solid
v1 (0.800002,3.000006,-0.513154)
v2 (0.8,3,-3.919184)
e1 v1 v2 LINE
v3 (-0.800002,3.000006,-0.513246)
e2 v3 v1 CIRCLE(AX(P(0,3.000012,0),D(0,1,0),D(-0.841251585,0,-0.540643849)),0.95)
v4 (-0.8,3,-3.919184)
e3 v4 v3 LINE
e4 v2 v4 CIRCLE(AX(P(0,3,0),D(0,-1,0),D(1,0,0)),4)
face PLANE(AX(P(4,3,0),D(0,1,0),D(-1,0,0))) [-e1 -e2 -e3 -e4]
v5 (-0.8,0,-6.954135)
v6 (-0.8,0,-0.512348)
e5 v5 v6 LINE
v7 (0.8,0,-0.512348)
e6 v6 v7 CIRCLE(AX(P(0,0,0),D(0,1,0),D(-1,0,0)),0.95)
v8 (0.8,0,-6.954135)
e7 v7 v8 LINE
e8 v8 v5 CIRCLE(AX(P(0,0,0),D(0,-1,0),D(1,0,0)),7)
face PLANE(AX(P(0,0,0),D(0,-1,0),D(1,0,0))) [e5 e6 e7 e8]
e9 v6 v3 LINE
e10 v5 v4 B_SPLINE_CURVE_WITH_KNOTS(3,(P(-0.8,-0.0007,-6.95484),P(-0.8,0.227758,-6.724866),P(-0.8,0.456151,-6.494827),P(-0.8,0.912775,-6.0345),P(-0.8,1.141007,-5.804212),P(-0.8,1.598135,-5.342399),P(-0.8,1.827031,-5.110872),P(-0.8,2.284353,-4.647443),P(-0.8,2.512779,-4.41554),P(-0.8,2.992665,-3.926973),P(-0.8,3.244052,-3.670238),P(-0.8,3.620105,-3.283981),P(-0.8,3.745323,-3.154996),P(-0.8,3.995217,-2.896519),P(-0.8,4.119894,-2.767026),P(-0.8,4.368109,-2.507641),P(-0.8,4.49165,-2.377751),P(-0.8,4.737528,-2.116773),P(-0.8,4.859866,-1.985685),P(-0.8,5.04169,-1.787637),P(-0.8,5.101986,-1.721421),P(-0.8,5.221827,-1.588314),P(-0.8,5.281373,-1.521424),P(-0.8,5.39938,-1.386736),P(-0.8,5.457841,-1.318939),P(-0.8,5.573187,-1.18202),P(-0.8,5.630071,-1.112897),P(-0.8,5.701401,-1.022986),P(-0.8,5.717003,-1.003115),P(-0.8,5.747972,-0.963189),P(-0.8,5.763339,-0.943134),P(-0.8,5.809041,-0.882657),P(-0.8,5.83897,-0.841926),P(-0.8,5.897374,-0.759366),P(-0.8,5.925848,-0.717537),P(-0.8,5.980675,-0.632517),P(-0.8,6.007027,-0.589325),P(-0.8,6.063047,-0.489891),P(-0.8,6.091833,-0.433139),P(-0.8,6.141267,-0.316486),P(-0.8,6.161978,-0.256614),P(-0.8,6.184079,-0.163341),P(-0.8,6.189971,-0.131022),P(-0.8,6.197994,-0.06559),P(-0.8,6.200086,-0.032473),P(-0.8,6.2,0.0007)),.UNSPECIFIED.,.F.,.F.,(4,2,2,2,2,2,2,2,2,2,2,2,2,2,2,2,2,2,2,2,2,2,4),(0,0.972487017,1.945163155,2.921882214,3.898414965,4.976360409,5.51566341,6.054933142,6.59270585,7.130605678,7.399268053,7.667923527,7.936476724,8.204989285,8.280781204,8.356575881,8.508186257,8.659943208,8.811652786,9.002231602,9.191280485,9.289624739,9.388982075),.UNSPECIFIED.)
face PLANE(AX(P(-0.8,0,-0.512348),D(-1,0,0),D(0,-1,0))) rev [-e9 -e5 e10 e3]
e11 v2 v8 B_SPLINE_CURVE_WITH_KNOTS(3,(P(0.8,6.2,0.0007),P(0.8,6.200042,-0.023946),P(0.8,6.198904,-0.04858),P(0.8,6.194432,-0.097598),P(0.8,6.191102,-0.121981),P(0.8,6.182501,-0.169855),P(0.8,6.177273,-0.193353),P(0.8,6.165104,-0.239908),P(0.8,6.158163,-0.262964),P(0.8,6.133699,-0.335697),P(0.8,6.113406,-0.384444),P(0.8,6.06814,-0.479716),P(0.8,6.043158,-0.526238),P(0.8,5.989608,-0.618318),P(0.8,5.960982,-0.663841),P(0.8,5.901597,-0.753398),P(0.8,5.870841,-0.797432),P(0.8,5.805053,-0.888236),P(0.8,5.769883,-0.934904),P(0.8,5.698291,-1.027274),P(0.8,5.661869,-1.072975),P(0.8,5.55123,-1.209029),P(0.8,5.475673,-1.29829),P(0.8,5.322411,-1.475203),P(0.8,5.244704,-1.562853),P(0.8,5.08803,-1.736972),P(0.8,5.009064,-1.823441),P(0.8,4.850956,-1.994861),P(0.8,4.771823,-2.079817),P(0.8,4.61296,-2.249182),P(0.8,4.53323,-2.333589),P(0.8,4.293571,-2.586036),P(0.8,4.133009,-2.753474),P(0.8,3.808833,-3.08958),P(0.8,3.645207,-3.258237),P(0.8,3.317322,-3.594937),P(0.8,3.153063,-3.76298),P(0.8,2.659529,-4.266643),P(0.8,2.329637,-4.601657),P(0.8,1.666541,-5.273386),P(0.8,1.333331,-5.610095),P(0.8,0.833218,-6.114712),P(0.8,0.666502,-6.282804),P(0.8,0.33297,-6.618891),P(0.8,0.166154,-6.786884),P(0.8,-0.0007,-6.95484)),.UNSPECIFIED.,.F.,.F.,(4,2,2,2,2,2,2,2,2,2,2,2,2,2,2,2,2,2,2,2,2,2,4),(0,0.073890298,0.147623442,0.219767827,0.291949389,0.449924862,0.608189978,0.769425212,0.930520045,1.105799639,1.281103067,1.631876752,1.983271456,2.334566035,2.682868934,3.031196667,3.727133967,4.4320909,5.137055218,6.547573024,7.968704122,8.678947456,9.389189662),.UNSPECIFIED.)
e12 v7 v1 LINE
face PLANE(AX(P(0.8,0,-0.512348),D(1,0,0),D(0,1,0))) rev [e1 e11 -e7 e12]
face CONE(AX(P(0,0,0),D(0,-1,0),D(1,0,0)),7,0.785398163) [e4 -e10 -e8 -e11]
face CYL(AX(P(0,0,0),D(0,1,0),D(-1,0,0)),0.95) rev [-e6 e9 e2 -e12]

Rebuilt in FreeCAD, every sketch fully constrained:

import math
import FreeCAD as App
import Part
import Sketcher
Q = App.Units.Quantity


def add_polygon(sketch, points):
    """Adds a closed chain of lines whose ends are joined by coincident constraints."""
    first, n = sketch.GeometryCount, len(points)
    for a, b in zip(points, points[1:] + points[:1]):
        sketch.addGeometry(Part.LineSegment(App.Vector(*a, 0), App.Vector(*b, 0)), False)
    for i in range(n):
        sketch.addConstraint(Sketcher.Constraint("Coincident", first + i, 2, first + (i + 1) % n, 1))

doc = App.newDocument("Part")
params = doc.addObject("Spreadsheet::Sheet", "Params")
for row, (alias, value) in enumerate([
    ("sketch1_width", "7 mm"),
    ("sketch1_width2", "4 mm"),
    ("sketch1_height", "3 mm"),
    ("revolution_angle", "360 deg"),
    ("sketch2_diameter", "1.9 mm"),
    ("sketch3_radius", "7 mm"),
    ("sketch3_radius2", "0.95 mm"),
], start=1):
    params.set(f"A{row}", alias)
    params.set(f"B{row}", "=" + value)
    params.setAlias(f"B{row}", alias)

body = doc.addObject("PartDesign::Body", "Body")

# Sketch on XY plane
sketch1 = body.newObject("Sketcher::SketchObject", "Sketch")
sketch1.AttachmentSupport = (doc.getObject("XY_Plane"), [""])
sketch1.MapMode = "FlatFace"
add_polygon(sketch1, [(0, 0), (7, 0), (4, 3), (0, 3)])  # lines 0-3
sketch1.addConstraint([
    Sketcher.Constraint("Horizontal", 0),
    Sketcher.Constraint("Horizontal", 2),
    Sketcher.Constraint("Vertical", 3),
    Sketcher.Constraint("Coincident", 3, 2, -1, 1),
    Sketcher.Constraint("DistanceX", 0, 1, 0, 2, Q("7 mm")),
    Sketcher.Constraint("DistanceX", 2, 2, 2, 1, Q("4 mm")),
    Sketcher.Constraint("DistanceY", 3, 2, 3, 1, Q("3 mm")),
])
sketch1.setExpression("Constraints[8]", "Params.sketch1_width")
sketch1.setExpression("Constraints[9]", "Params.sketch1_width2")
sketch1.setExpression("Constraints[10]", "Params.sketch1_height")
revolution = body.newObject("PartDesign::Revolution", "Revolution")
revolution.Profile = sketch1
revolution.ReferenceAxis = (sketch1, ["V_Axis"])
revolution.setExpression("Angle", "Params.revolution_angle")

# Sketch on XZ plane
sketch2 = body.newObject("Sketcher::SketchObject", "Sketch001")
sketch2.AttachmentSupport = (doc.getObject("XZ_Plane"), [""])
sketch2.MapMode = "FlatFace"
sketch2.AttachmentOffset = App.Placement(App.Vector(0, 0, -3), App.Rotation())
sketch2.addGeometry(Part.Circle(App.Vector(0, 0, 0), App.Vector(0, 0, 1), 0.9), False)
sketch2.addConstraint([
    Sketcher.Constraint("Coincident", 0, 3, -1, 1),
    Sketcher.Constraint("Diameter", 0, Q("1.9 mm")),
])
sketch2.setExpression("Constraints[1]", "Params.sketch2_diameter")
pocket1 = body.newObject("PartDesign::Pocket", "Pocket")
pocket1.Profile = sketch2
pocket1.Type = "ThroughAll"
pocket1.Midplane = True

# Sketch on XZ plane
sketch3 = body.newObject("Sketcher::SketchObject", "Sketch002")
sketch3.AttachmentSupport = (doc.getObject("XZ_Plane"), [""])
sketch3.MapMode = "FlatFace"
sketch3.AttachmentOffset = App.Placement(App.Vector(0, 0, -3), App.Rotation())
sketch3.addGeometry([
    Part.LineSegment(App.Vector(-0.8, -7, 0), App.Vector(-0.8, -0.5, 0)),
    Part.ArcOfCircle(Part.Circle(App.Vector(0, 0, 0), App.Vector(0, 0, 1), 0.9), math.radians(-147), math.radians(-33)),
    Part.LineSegment(App.Vector(0.8, -0.5, 0), App.Vector(0.8, -7, 0)),
    Part.ArcOfCircle(Part.Circle(App.Vector(0, 0, 0), App.Vector(0, 0, 1), 7), math.radians(-96.56), math.radians(-83.44)),
], False)
sketch3.addConstraint([
    Sketcher.Constraint("Coincident", 0, 2, 1, 1),
    Sketcher.Constraint("Coincident", 1, 2, 2, 1),
    Sketcher.Constraint("Coincident", 2, 2, 3, 2),
    Sketcher.Constraint("Coincident", 3, 1, 0, 1),
    Sketcher.Constraint("Vertical", 0),
    Sketcher.Constraint("Vertical", 2),
    Sketcher.Constraint("Coincident", 1, 3, -1, 1),
    Sketcher.Constraint("Coincident", 3, 3, -1, 1),
    Sketcher.Constraint("Horizontal", 0, 2, 1, 2),
    Sketcher.Constraint("Radius", 3, Q("7 mm")),
    Sketcher.Constraint("Radius", 1, Q("0.95 mm")),
    Sketcher.Constraint("DistanceX", 0, 2, -1, 1, Q("0.8 mm")),
])
sketch3.setExpression("Constraints[9]", "Params.sketch3_radius")
sketch3.setExpression("Constraints[10]", "Params.sketch3_radius2")
pocket2 = body.newObject("PartDesign::Pocket", "Pocket001")
pocket2.Profile = sketch3
pocket2.Type = "ThroughAll"
pocket2.Midplane = True

doc.recompute()
